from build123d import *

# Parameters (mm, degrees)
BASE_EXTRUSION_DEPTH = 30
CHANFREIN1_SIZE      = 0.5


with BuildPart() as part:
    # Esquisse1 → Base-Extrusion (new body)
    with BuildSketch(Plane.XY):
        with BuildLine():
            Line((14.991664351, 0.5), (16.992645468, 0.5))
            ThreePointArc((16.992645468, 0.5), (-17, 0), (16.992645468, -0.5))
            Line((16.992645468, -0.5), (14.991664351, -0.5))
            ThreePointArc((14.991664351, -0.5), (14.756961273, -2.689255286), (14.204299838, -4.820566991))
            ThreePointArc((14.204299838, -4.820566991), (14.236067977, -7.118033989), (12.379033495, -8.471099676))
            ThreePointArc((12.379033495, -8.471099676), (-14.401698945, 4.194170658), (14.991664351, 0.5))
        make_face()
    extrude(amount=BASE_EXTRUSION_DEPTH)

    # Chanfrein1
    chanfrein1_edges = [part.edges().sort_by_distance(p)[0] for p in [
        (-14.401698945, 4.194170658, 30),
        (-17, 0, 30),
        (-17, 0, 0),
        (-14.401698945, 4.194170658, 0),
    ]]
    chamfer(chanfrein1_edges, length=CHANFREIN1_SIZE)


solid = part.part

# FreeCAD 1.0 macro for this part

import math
import FreeCAD as App
import Part
import Sketcher


def edges_at(feature, points):
    """Names of the edges that pass closest to the given points."""
    edges = feature.Shape.Edges
    near = lambda p: min(range(len(edges)), key=lambda i: edges[i].distToShape(Part.Vertex(*p))[0])
    return sorted({f"Edge{near(p) + 1}" for p in points})

doc = App.newDocument("Part")
body = doc.addObject("PartDesign::Body", "Body")

# Sketch on XY plane
sketch1 = body.newObject("Sketcher::SketchObject", "Sketch")
sketch1.AttachmentSupport = (doc.getObject("XY_Plane"), [""])
sketch1.MapMode = "FlatFace"
sketch1.addGeometry([
    Part.LineSegment(App.Vector(15, 0.5, 0), App.Vector(17, 0.5, 0)),  # 0
    Part.ArcOfCircle(Part.Circle(App.Vector(0, 0, 0), App.Vector(0, 0, 1), 17), math.radians(2), math.radians(358)),  # 1
    Part.LineSegment(App.Vector(17, -0.5, 0), App.Vector(15, -0.5, 0)),  # 2
    Part.ArcOfCircle(Part.Circle(App.Vector(0, 0, 0), App.Vector(0, 0, 1), 15), math.radians(-18.75), math.radians(-1.91)),  # 3
    Part.ArcOfCircle(Part.Circle(App.Vector(12, -6, 0), App.Vector(0, 0, 1), 2.5), math.radians(-81), math.radians(28)),  # 4
    Part.ArcOfCircle(Part.Circle(App.Vector(0, 0, 0), App.Vector(0, 0, 1), 15), math.radians(2), math.radians(326)),  # 5
], False)
sketch1.addConstraint([
    Sketcher.Constraint("Coincident", 0, 2, 1, 1),
    Sketcher.Constraint("Coincident", 1, 2, 2, 1),
    Sketcher.Constraint("Coincident", 2, 2, 3, 2),
    Sketcher.Constraint("Coincident", 3, 1, 4, 2),
    Sketcher.Constraint("Coincident", 4, 1, 5, 2),
    Sketcher.Constraint("Coincident", 5, 1, 0, 1),
    Sketcher.Constraint("Horizontal", 0),
    Sketcher.Constraint("Horizontal", 2),
    Sketcher.Constraint("Coincident", 1, 3, -1, 1),
    Sketcher.Constraint("Coincident", 3, 3, -1, 1),
    Sketcher.Constraint("Coincident", 5, 3, -1, 1),
    Sketcher.Constraint("Equal", 3, 5),
    Sketcher.Constraint("Vertical", 0, 2, 1, 2),
    Sketcher.Constraint("Radius", 1, 17.0),
    Sketcher.Constraint("Radius", 3, 15.0),
    Sketcher.Constraint("Radius", 4, 2.5),
    Sketcher.Constraint("DistanceX", -1, 1, 4, 3, 12.0),
    Sketcher.Constraint("DistanceY", 4, 3, -1, 1, 6.0),
    Sketcher.Constraint("DistanceY", 1, 2, 0, 2, 1.0),
])
pad1 = body.newObject("PartDesign::Pad", "Pad")
pad1.Profile = sketch1
pad1.Length = 30
doc.recompute()

chamfer = body.newObject("PartDesign::Chamfer", "Chamfer")
chamfer.Base = (pad1, edges_at(pad1, [
    (-14.402, 4.194, 30),
    (-17, 0, 30),
    (-17, 0, 0),
    (-14.402, 4.194, 0),
]))
chamfer.Size = 0.5

doc.recompute()
